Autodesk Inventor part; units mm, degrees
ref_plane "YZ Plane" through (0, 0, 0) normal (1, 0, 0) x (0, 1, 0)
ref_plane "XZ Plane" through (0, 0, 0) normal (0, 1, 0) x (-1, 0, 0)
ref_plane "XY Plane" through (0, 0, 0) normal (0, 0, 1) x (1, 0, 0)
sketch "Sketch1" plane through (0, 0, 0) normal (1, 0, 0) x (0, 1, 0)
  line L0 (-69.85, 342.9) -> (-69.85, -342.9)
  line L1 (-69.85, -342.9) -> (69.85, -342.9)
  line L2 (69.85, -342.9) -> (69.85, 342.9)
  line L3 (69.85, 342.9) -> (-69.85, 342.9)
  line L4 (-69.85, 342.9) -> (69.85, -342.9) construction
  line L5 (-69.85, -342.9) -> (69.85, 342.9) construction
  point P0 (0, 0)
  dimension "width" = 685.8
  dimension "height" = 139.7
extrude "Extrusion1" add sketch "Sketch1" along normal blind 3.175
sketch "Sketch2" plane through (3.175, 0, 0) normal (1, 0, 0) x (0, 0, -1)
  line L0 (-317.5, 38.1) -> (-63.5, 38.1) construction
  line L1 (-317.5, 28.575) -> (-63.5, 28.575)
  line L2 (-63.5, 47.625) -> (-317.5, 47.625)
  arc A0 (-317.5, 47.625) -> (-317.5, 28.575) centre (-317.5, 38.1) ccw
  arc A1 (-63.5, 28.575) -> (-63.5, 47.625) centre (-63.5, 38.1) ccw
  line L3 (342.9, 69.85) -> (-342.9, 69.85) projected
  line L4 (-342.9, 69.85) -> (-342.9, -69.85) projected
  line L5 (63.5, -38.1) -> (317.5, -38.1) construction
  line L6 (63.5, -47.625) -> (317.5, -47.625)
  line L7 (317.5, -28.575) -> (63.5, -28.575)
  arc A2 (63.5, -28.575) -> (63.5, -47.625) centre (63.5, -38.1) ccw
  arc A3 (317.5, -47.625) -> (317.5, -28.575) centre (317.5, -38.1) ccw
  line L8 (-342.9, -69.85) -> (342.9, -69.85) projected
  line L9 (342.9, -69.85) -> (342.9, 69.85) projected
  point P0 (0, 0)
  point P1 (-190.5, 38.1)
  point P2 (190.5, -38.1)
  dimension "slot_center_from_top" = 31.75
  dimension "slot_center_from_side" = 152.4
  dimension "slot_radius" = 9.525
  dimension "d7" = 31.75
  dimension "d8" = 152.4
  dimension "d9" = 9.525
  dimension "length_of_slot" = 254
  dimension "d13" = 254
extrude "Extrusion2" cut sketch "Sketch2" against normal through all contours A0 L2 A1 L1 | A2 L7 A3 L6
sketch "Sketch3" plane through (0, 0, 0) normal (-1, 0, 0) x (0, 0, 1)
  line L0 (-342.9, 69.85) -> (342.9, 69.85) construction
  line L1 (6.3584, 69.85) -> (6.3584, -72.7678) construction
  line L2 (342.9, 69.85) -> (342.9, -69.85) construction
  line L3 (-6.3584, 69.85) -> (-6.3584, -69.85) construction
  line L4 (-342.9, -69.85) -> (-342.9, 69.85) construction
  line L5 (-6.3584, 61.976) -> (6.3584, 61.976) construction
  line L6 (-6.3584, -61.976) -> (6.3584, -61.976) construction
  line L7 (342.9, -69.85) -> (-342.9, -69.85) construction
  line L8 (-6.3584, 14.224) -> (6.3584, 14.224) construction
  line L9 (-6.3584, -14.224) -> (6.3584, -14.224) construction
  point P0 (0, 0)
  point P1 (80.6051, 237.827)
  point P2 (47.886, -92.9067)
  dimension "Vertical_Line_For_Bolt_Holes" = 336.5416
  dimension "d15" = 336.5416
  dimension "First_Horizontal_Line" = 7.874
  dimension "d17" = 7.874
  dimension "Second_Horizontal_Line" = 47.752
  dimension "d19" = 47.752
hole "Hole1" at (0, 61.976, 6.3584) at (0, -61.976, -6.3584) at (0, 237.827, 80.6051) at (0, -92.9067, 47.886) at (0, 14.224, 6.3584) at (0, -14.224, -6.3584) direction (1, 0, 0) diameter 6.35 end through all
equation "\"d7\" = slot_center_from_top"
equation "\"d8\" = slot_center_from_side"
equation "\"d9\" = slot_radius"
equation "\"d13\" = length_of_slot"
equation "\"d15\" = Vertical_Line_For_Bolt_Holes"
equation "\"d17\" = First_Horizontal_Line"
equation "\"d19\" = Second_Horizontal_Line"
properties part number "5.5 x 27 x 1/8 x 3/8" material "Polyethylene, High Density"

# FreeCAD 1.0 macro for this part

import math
import FreeCAD as App
import Part
import Sketcher

V = App.Vector
Q = App.Units.Quantity

doc = App.newDocument("Part")
body = doc.addObject("PartDesign::Body", "Body")

sketch1 = body.newObject("Sketcher::SketchObject", "Sketch")
sketch1.AttachmentSupport = (doc.getObject("YZ_Plane"), [""])
sketch1.MapMode = "FlatFace"
sketch1.addGeometry([
    Part.LineSegment(V(70, 343, 0), V(-70, 343, 0)),
    Part.LineSegment(V(-70, 343, 0), V(-70, -343, 0)),
    Part.LineSegment(V(-70, -343, 0), V(70, -343, 0)),
    Part.LineSegment(V(70, -343, 0), V(70, 343, 0)),
], False)
sketch1.addConstraint([
    Sketcher.Constraint("Coincident", 0, 2, 1, 1),
    Sketcher.Constraint("Coincident", 1, 2, 2, 1),
    Sketcher.Constraint("Coincident", 2, 2, 3, 1),
    Sketcher.Constraint("Coincident", 3, 2, 0, 1),
    Sketcher.Constraint("Horizontal", 0),
    Sketcher.Constraint("Vertical", 1),
    Sketcher.Constraint("Horizontal", 2),
    Sketcher.Constraint("Vertical", 3),
    Sketcher.Constraint("Symmetric", 0, 2, 2, 2, -1, 1),
    Sketcher.Constraint("DistanceY", 1, 2, 1, 1, Q("27 in")),
    Sketcher.Constraint("DistanceX", 0, 2, 0, 1, Q("5.5 in")),
])
pad1 = body.newObject("PartDesign::Pad", "Pad")
pad1.Profile = sketch1
pad1.Length = Q("0.125 in")

sketch2 = body.newObject("Sketcher::SketchObject", "Sketch001")
sketch2.AttachmentSupport = (doc.getObject("YZ_Plane"), [""])
sketch2.MapMode = "FlatFace"
sketch2.AttachmentOffset = App.Placement(V(0, 0, 0.125 * 25.4), App.Rotation())
sketch2.addGeometry([
    Part.ArcOfCircle(Part.Circle(V(38, 318, 0), V(0, 0, 1), 10), math.radians(0), math.radians(180)),
    Part.LineSegment(V(29, 318, 0), V(29, 64, 0)),
    Part.ArcOfCircle(Part.Circle(V(38, 64, 0), V(0, 0, 1), 10), math.radians(180), math.radians(360)),
    Part.LineSegment(V(48, 64, 0), V(48, 318, 0)),
    Part.ArcOfCircle(Part.Circle(V(-38, -64, 0), V(0, 0, 1), 10), math.radians(0), math.radians(180)),
    Part.LineSegment(V(-48, -64, 0), V(-48, -318, 0)),
    Part.ArcOfCircle(Part.Circle(V(-38, -318, 0), V(0, 0, 1), 10), math.radians(180), math.radians(360)),
    Part.LineSegment(V(-29, -318, 0), V(-29, -64, 0)),
], False)
sketch2.addConstraint([
    Sketcher.Constraint("Tangent", 0, 2, 1, 1),
    Sketcher.Constraint("Tangent", 1, 2, 2, 1),
    Sketcher.Constraint("Tangent", 2, 2, 3, 1),
    Sketcher.Constraint("Tangent", 3, 2, 0, 1),
    Sketcher.Constraint("Tangent", 4, 2, 5, 1),
    Sketcher.Constraint("Tangent", 5, 2, 6, 1),
    Sketcher.Constraint("Tangent", 6, 2, 7, 1),
    Sketcher.Constraint("Tangent", 7, 2, 4, 1),
    Sketcher.Constraint("Vertical", 1),
    Sketcher.Constraint("Vertical", 3),
    Sketcher.Constraint("Vertical", 5),
    Sketcher.Constraint("Vertical", 7),
    Sketcher.Constraint("Equal", 2, 4),
    Sketcher.Constraint("Symmetric", 2, 3, 4, 3, -1, 1),
    Sketcher.Constraint("Equal", 3, 5),
    Sketcher.Constraint("DistanceY", 1, 2, 1, 1, Q("10 in")),
    Sketcher.Constraint("Radius", 0, Q("0.375 in")),
    Sketcher.Constraint("DistanceX", 4, 3, 2, 3, Q("3 in")),
    Sketcher.Constraint("DistanceY", 4, 3, 2, 3, Q("5 in")),
])
pocket1 = body.newObject("PartDesign::Pocket", "Pocket")
pocket1.Profile = sketch2
pocket1.Type = "ThroughAll"

sketch3 = body.newObject("Sketcher::SketchObject", "Sketch002")
sketch3.AttachmentSupport = (doc.getObject("YZ_Plane"), [""])
sketch3.MapMode = "FlatFace"
sketch3.addGeometry([
    Part.Circle(V(62, 6.4, 0), V(0, 0, 1), 3.2),
    Part.Circle(V(-62, -6.4, 0), V(0, 0, 1), 3.2),
    Part.Circle(V(237.8, 80.6, 0), V(0, 0, 1), 3.2),
    Part.Circle(V(-92.9, 47.9, 0), V(0, 0, 1), 3.2),
    Part.Circle(V(14.2, 6.4, 0), V(0, 0, 1), 3.2),
    Part.Circle(V(-14.2, -6.4, 0), V(0, 0, 1), 3.2),
], False)
sketch3.addConstraint([
    Sketcher.Constraint("Equal", 0, 1),
    Sketcher.Constraint("Equal", 1, 2),
    Sketcher.Constraint("Equal", 2, 3),
    Sketcher.Constraint("Equal", 3, 4),
    Sketcher.Constraint("Equal", 4, 5),
    Sketcher.Constraint("Symmetric", 0, 3, 1, 3, -1, 1),
    Sketcher.Constraint("Symmetric", 4, 3, 5, 3, -1, 1),
    Sketcher.Constraint("Horizontal", 0, 3, 4, 3),
    Sketcher.Constraint("Diameter", 0, Q("0.25 in")),
    Sketcher.Constraint("DistanceX", 1, 3, 4, 3, Q("3 in")),
    Sketcher.Constraint("DistanceX", -1, 1, 0, 3, Q("2.44 in")),
    Sketcher.Constraint("DistanceX", 3, 3, 2, 3, Q("13.021 in")),
    Sketcher.Constraint("DistanceY", 0, 3, 2, 3, Q("2.9231 in")),
    Sketcher.Constraint("DistanceY", 1, 3, 3, 3, Q("2.1356 in")),
    Sketcher.Constraint("DistanceY", -1, 1, 0, 3, 6.3584),
    Sketcher.Constraint("DistanceX", -1, 1, 2, 3, 237.827),
])
doc.recompute()
hole = body.newObject("PartDesign::Hole", "Hole")
hole.Profile = sketch3
hole.ThreadType = "None"
hole.Diameter = Q("0.25 in")
hole.DepthType = "ThroughAll"
hole.Reversed = True

doc.recompute()
